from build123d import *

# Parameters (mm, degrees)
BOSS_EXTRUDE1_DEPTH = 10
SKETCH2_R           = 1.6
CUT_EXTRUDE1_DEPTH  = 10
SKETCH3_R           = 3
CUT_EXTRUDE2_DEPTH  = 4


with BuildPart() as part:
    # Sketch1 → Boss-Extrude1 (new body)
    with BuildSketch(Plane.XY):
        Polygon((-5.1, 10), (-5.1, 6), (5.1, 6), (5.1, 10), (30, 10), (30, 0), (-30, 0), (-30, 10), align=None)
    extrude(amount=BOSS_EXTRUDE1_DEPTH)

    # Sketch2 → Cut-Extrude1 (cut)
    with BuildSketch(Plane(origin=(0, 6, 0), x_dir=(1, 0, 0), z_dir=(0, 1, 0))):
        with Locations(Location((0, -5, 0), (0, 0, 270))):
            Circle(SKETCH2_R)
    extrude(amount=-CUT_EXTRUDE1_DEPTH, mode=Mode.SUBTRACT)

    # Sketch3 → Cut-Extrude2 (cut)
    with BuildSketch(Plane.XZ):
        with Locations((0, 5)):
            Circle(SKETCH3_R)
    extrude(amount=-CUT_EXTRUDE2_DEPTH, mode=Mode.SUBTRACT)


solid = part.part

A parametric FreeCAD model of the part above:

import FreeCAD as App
import Part
import Sketcher
Q = App.Units.Quantity


def add_polygon(sketch, points):
    """Adds a closed chain of lines whose ends are joined by coincident constraints."""
    first, n = sketch.GeometryCount, len(points)
    for a, b in zip(points, points[1:] + points[:1]):
        sketch.addGeometry(Part.LineSegment(App.Vector(*a, 0), App.Vector(*b, 0)), False)
    for i in range(n):
        sketch.addConstraint(Sketcher.Constraint("Coincident", first + i, 2, first + (i + 1) % n, 1))

doc = App.newDocument("Part")
body = doc.addObject("PartDesign::Body", "Body")

sketch1 = doc.addObject("Sketcher::SketchObject", "Sketch")
body.addObject(sketch1)
sketch1.AttachmentSupport = (doc.XY_Plane, [""])
sketch1.MapMode = "FlatFace"
add_polygon(sketch1, [(-5.1, 6), (-5.1, 10), (-30, 10), (-30, 0), (30, 0), (30, 10), (5.1, 10), (5.1, 6)])
sketch1.addConstraint([
    Sketcher.Constraint("Vertical", 0),
    Sketcher.Constraint("Horizontal", 1),
    Sketcher.Constraint("Vertical", 2),
    Sketcher.Constraint("Horizontal", 3),
    Sketcher.Constraint("Vertical", 4),
    Sketcher.Constraint("Horizontal", 5),
    Sketcher.Constraint("Vertical", 6),
    Sketcher.Constraint("Horizontal", 7),
    Sketcher.Constraint("Symmetric", 2, 2, 3, 2, -1, 1),
    Sketcher.Constraint("Symmetric", 0, 2, 5, 2, -2),
    Sketcher.Constraint("DistanceX", 3, 1, 3, 2, Q("60 mm")),
    Sketcher.Constraint("DistanceY", 0, 1, 0, 2, Q("4 mm")),
    Sketcher.Constraint("DistanceY", 2, 2, 2, 1, Q("10 mm")),
    Sketcher.Constraint("DistanceX", 1, 2, 1, 1, Q("24.9 mm")),
])
pad1 = doc.addObject("PartDesign::Pad", "Pad")
body.addObject(pad1)
pad1.Profile = sketch1
pad1.Length = 10

sketch2 = doc.addObject("Sketcher::SketchObject", "Sketch001")
body.addObject(sketch2)
sketch2.AttachmentSupport = (doc.XZ_Plane, [""])
sketch2.MapMode = "FlatFace"
sketch2.AttachmentOffset = App.Placement(App.Vector(0, 0, -6), App.Rotation())
sketch2.addGeometry(Part.Circle(App.Vector(0, 5, 0), App.Vector(0, 0, 1), 1.6), False)
sketch2.addConstraint([
    Sketcher.Constraint("PointOnObject", 0, 3, -2),
    Sketcher.Constraint("Diameter", 0, Q("3.2 mm")),
    Sketcher.Constraint("DistanceY", -1, 1, 0, 3, Q("5 mm")),
])
pocket1 = doc.addObject("PartDesign::Pocket", "Pocket")
body.addObject(pocket1)
pocket1.Profile = sketch2
pocket1.Length = 10
pocket1.Reversed = True

sketch3 = doc.addObject("Sketcher::SketchObject", "Sketch002")
body.addObject(sketch3)
sketch3.AttachmentSupport = (doc.XZ_Plane, [""])
sketch3.MapMode = "FlatFace"
sketch3.addGeometry(Part.Circle(App.Vector(0, 5, 0), App.Vector(0, 0, 1), 3), False)
sketch3.addConstraint([
    Sketcher.Constraint("PointOnObject", 0, 3, -2),
    Sketcher.Constraint("Diameter", 0, Q("6 mm")),
    Sketcher.Constraint("DistanceY", -1, 1, 0, 3, Q("5 mm")),
])
pocket2 = doc.addObject("PartDesign::Pocket", "Pocket001")
body.addObject(pocket2)
pocket2.Profile = sketch3
pocket2.Length = 4

doc.recompute()
